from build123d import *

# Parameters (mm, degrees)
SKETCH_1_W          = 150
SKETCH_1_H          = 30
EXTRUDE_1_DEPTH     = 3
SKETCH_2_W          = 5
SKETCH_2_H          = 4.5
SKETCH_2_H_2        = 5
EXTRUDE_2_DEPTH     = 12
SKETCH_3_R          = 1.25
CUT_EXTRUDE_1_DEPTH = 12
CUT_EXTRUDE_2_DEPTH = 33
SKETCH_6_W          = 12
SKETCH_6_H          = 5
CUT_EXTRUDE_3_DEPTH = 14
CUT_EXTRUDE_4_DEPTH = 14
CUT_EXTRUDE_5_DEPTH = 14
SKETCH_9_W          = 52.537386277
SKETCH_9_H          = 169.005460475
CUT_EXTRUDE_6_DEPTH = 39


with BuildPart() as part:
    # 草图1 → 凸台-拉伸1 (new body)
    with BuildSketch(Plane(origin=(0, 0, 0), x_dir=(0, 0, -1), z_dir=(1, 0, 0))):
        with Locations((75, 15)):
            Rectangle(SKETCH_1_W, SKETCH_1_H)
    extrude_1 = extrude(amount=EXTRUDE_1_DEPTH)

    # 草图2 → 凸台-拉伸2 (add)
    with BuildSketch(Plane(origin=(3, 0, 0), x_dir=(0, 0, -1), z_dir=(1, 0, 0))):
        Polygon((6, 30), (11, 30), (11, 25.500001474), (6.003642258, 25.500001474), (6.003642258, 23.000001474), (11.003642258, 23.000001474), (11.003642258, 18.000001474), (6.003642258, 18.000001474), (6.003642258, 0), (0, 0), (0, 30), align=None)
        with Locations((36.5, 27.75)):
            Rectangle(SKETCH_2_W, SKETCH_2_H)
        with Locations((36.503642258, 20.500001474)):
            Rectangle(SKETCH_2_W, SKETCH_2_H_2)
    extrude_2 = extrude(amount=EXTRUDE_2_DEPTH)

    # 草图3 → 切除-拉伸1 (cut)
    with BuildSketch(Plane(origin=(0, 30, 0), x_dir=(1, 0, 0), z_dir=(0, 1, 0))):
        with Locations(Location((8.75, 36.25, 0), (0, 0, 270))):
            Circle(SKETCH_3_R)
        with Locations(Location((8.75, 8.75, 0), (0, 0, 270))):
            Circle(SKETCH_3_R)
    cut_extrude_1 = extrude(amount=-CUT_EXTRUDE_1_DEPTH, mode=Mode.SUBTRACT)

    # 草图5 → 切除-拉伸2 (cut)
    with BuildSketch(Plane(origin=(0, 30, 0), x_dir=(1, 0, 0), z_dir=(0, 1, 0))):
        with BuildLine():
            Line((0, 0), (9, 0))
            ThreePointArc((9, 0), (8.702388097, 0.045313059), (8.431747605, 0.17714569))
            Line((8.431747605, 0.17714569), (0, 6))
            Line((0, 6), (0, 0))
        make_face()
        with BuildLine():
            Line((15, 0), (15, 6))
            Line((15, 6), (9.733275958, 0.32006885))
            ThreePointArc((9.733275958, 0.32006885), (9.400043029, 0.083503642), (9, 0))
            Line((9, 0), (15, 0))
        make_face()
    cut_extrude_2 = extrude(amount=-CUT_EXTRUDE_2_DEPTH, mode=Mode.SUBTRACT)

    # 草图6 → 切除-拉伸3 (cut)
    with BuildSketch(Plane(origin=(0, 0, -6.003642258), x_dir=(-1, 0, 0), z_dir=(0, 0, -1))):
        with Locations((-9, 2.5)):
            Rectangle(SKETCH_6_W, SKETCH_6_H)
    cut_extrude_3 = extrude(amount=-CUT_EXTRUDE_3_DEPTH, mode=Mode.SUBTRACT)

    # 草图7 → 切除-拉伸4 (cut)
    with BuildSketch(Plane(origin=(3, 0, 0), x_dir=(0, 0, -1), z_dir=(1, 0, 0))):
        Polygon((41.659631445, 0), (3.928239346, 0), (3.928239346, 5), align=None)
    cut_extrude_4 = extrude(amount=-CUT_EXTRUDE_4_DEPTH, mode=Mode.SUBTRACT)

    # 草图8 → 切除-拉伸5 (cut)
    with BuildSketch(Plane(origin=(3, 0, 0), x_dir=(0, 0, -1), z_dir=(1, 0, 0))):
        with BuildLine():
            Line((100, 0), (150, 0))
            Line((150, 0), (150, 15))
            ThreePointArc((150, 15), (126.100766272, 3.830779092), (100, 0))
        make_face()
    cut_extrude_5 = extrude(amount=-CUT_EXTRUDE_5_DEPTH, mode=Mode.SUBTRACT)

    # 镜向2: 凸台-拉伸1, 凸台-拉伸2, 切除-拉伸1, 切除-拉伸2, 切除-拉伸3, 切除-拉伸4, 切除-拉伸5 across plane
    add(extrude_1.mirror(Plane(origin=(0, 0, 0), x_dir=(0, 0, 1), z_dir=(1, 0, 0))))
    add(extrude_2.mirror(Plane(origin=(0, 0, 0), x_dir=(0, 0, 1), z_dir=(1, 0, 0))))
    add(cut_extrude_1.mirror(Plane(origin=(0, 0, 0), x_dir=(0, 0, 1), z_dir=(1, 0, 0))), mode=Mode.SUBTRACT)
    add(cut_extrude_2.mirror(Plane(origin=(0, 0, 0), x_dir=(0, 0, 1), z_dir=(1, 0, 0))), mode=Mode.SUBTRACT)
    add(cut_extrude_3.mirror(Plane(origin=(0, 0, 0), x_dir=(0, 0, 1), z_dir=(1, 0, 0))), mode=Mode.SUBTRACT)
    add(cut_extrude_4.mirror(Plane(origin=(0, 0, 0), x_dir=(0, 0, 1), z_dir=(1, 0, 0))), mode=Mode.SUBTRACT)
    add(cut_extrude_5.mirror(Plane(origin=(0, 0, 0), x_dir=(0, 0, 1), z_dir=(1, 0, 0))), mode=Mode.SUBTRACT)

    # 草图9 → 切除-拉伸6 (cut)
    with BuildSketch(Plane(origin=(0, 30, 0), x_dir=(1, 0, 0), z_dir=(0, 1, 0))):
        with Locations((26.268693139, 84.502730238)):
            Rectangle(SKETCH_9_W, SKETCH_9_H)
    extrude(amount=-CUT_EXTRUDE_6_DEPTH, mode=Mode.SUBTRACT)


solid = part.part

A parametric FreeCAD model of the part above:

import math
import FreeCAD as App
import Part
import Sketcher
Q = App.Units.Quantity


def add_polygon(sketch, points):
    """Adds a closed chain of lines whose ends are joined by coincident constraints."""
    first, n = sketch.GeometryCount, len(points)
    for a, b in zip(points, points[1:] + points[:1]):
        sketch.addGeometry(Part.LineSegment(App.Vector(*a, 0), App.Vector(*b, 0)), False)
    for i in range(n):
        sketch.addConstraint(Sketcher.Constraint("Coincident", first + i, 2, first + (i + 1) % n, 1))

doc = App.newDocument("Part")
body = doc.addObject("PartDesign::Body", "Body")

# Sketch on YZ plane
sketch1 = body.newObject("Sketcher::SketchObject", "Sketch")
sketch1.AttachmentSupport = (doc.getObject("YZ_Plane"), [""])
sketch1.MapMode = "FlatFace"
add_polygon(sketch1, [(30, 0), (0, 0), (0, -150), (30, -150)])  # lines 0-3
sketch1.addConstraint([
    Sketcher.Constraint("Horizontal", 0),
    Sketcher.Constraint("Vertical", 1),
    Sketcher.Constraint("Horizontal", 2),
    Sketcher.Constraint("Vertical", 3),
    Sketcher.Constraint("Coincident", 0, 2, -1, 1),
    Sketcher.Constraint("DistanceX", 0, 2, 0, 1, Q("30 mm")),
    Sketcher.Constraint("DistanceY", 1, 2, 1, 1, Q("150 mm")),
])
pad1 = body.newObject("PartDesign::Pad", "Pad")
pad1.Profile = sketch1
pad1.Length = 3

# Sketch on YZ plane
sketch2 = body.newObject("Sketcher::SketchObject", "Sketch001")
sketch2.AttachmentSupport = (doc.getObject("YZ_Plane"), [""])
sketch2.MapMode = "FlatFace"
sketch2.AttachmentOffset = App.Placement(App.Vector(0, 0, 3), App.Rotation())
add_polygon(sketch2, [(30, -11), (30, 0), (0, 0), (0, -6), (18, -6), (18, -11), (23, -11), (23, -6), (25.5, -6), (25.5, -11)])  # lines 0-9
add_polygon(sketch2, [(30, -34), (25.5, -34), (25.5, -39), (30, -39)])  # lines 10-13
add_polygon(sketch2, [(23, -34), (18, -34), (18, -39), (23, -39)])  # lines 14-17
sketch2.addConstraint([
    Sketcher.Constraint("Vertical", 0),
    Sketcher.Constraint("Horizontal", 1),
    Sketcher.Constraint("Vertical", 2),
    Sketcher.Constraint("Horizontal", 3),
    Sketcher.Constraint("Vertical", 4),
    Sketcher.Constraint("Horizontal", 5),
    Sketcher.Constraint("Vertical", 6),
    Sketcher.Constraint("Horizontal", 7),
    Sketcher.Constraint("Vertical", 8),
    Sketcher.Constraint("Horizontal", 9),
    Sketcher.Constraint("Horizontal", 10),
    Sketcher.Constraint("Vertical", 11),
    Sketcher.Constraint("Horizontal", 12),
    Sketcher.Constraint("Vertical", 13),
    Sketcher.Constraint("Horizontal", 14),
    Sketcher.Constraint("Vertical", 15),
    Sketcher.Constraint("Horizontal", 16),
    Sketcher.Constraint("Vertical", 17),
    Sketcher.Constraint("Coincident", 1, 2, -1, 1),
    Sketcher.Constraint("Horizontal", 3, 2, 6, 2),
    Sketcher.Constraint("Vertical", 8, 2, 10, 2),
    Sketcher.Constraint("Vertical", 9, 2, 12, 2),
    Sketcher.Constraint("Vertical", 4, 2, 14, 2),
    Sketcher.Constraint("Vertical", 6, 2, 16, 2),
    Sketcher.Constraint("Equal", 16, 4),
    Sketcher.Constraint("Equal", 6, 11),
    Sketcher.Constraint("Equal", 13, 15),
    Sketcher.Constraint("DistanceX", 1, 2, 1, 1, Q("30 mm")),
    Sketcher.Constraint("DistanceX", 3, 1, 3, 2, Q("18.000001 mm")),
    Sketcher.Constraint("DistanceX", 5, 1, 5, 2, Q("5 mm")),
    Sketcher.Constraint("DistanceY", 0, 1, 0, 2, Q("11 mm")),
    Sketcher.Constraint("DistanceX", 7, 1, 7, 2, Q("2.5 mm")),
    Sketcher.Constraint("DistanceY", 10, 2, -1, 1, Q("34 mm")),
    Sketcher.Constraint("DistanceY", 14, 2, 4, 2, Q("23 mm")),
    Sketcher.Constraint("DistanceY", 2, 2, 2, 1, Q("6.003642 mm")),
])
pad2 = body.newObject("PartDesign::Pad", "Pad001")
pad2.Profile = sketch2
pad2.Length = 12

# Sketch on XZ plane
sketch3 = body.newObject("Sketcher::SketchObject", "Sketch002")
sketch3.AttachmentSupport = (doc.getObject("XZ_Plane"), [""])
sketch3.MapMode = "FlatFace"
sketch3.AttachmentOffset = App.Placement(App.Vector(0, 0, -30), App.Rotation())
sketch3.addGeometry([
    Part.Circle(App.Vector(8.8, -36.2, 0), App.Vector(0, 0, 1), 1.2),
    Part.Circle(App.Vector(8.8, -8.8, 0), App.Vector(0, 0, 1), 1.2),
], False)
sketch3.addConstraint([
    Sketcher.Constraint("Equal", 0, 1),
    Sketcher.Constraint("Vertical", 0, 3, 1, 3),
    Sketcher.Constraint("Diameter", 0, Q("2.5 mm")),
    Sketcher.Constraint("DistanceY", 0, 3, 1, 3, Q("27.5 mm")),
    Sketcher.Constraint("DistanceX", -1, 1, 0, 3, Q("8.75 mm")),
    Sketcher.Constraint("DistanceY", 0, 3, -1, 1, Q("36.25 mm")),
])
pocket1 = body.newObject("PartDesign::Pocket", "Pocket")
pocket1.Profile = sketch3
pocket1.Length = 12
pocket1.Reversed = True

# Sketch on XZ plane
sketch4 = body.newObject("Sketcher::SketchObject", "Sketch003")
sketch4.AttachmentSupport = (doc.getObject("XZ_Plane"), [""])
sketch4.MapMode = "FlatFace"
sketch4.AttachmentOffset = App.Placement(App.Vector(0, 0, -30), App.Rotation())
sketch4.addGeometry([
    Part.LineSegment(App.Vector(0, 0, 0), App.Vector(9, 0, 0)),  # 0
    Part.ArcOfCircle(Part.Circle(App.Vector(9, -1, 0), App.Vector(0, 0, 1), 1), math.radians(90), math.radians(125)),  # 1
    Part.LineSegment(App.Vector(8.4, -0.2, 0), App.Vector(0, -6, 0)),  # 2
    Part.LineSegment(App.Vector(0, -6, 0), App.Vector(0, 0, 0)),  # 3
    Part.LineSegment(App.Vector(15, 0, 0), App.Vector(15, -6, 0)),  # 4
    Part.LineSegment(App.Vector(15, -6, 0), App.Vector(9.7, -0.3, 0)),  # 5
    Part.ArcOfCircle(Part.Circle(App.Vector(9, -1, 0), App.Vector(0, 0, 1), 1), math.radians(43), math.radians(90)),  # 6
    Part.LineSegment(App.Vector(9, 0, 0), App.Vector(15, 0, 0)),  # 7
], False)
sketch4.addConstraint([
    Sketcher.Constraint("Tangent", 0, 2, 1, 1),
    Sketcher.Constraint("Tangent", 1, 2, 2, 1),
    Sketcher.Constraint("Coincident", 2, 2, 3, 1),
    Sketcher.Constraint("Coincident", 3, 2, 0, 1),
    Sketcher.Constraint("Coincident", 4, 2, 5, 1),
    Sketcher.Constraint("Tangent", 5, 2, 6, 1),
    Sketcher.Constraint("Tangent", 6, 2, 7, 1),
    Sketcher.Constraint("Coincident", 7, 2, 4, 1),
    Sketcher.Constraint("Horizontal", 0),
    Sketcher.Constraint("Vertical", 3),
    Sketcher.Constraint("Vertical", 4),
    Sketcher.Constraint("Horizontal", 7),
    Sketcher.Constraint("Coincident", 3, 2, -1, 1),
    Sketcher.Constraint("Coincident", 6, 3, 1, 3),
    Sketcher.Constraint("Equal", 1, 6),
    Sketcher.Constraint("Horizontal", 2, 2, 4, 2),
    Sketcher.Constraint("Equal", 7, 3),
    Sketcher.Constraint("Radius", 1, Q("1 mm")),
    Sketcher.Constraint("DistanceX", 0, 1, 0, 2, Q("9 mm")),
    Sketcher.Constraint("DistanceX", 7, 1, 7, 2, Q("6 mm")),
])
pocket2 = body.newObject("PartDesign::Pocket", "Pocket001")
pocket2.Profile = sketch4
pocket2.Length = 33
pocket2.Reversed = True

# Sketch on XY plane
sketch5 = body.newObject("Sketcher::SketchObject", "Sketch004")
sketch5.AttachmentSupport = (doc.getObject("XY_Plane"), [""])
sketch5.MapMode = "FlatFace"
sketch5.AttachmentOffset = App.Placement(App.Vector(0, 0, -6.003642), App.Rotation())
add_polygon(sketch5, [(15, 5), (15, 0), (3, 0), (3, 5)])  # lines 0-3
sketch5.addConstraint([
    Sketcher.Constraint("Vertical", 0),
    Sketcher.Constraint("Horizontal", 1),
    Sketcher.Constraint("Vertical", 2),
    Sketcher.Constraint("Horizontal", 3),
    Sketcher.Constraint("PointOnObject", 0, 2, -1),
    Sketcher.Constraint("DistanceX", 1, 2, 1, 1, Q("12 mm")),
    Sketcher.Constraint("DistanceY", 0, 2, 0, 1, Q("5 mm")),
    Sketcher.Constraint("DistanceX", -1, 1, 0, 2, Q("15 mm")),
])
pocket3 = body.newObject("PartDesign::Pocket", "Pocket002")
pocket3.Profile = sketch5
pocket3.Length = 14
pocket3.Reversed = True

# Sketch on YZ plane
sketch6 = body.newObject("Sketcher::SketchObject", "Sketch005")
sketch6.AttachmentSupport = (doc.getObject("YZ_Plane"), [""])
sketch6.MapMode = "FlatFace"
sketch6.AttachmentOffset = App.Placement(App.Vector(0, 0, 3), App.Rotation())
add_polygon(sketch6, [(0, -4), (0, -42), (5, -4)])  # lines 0-2
sketch6.addConstraint([
    Sketcher.Constraint("Vertical", 0),
    Sketcher.Constraint("Horizontal", 2),
    Sketcher.Constraint("PointOnObject", 0, 2, -2),
    Sketcher.Constraint("DistanceX", 2, 2, 2, 1, Q("5 mm")),
    Sketcher.Constraint("Distance", 1, Q("38.061239 mm")),
    Sketcher.Constraint("DistanceY", 0, 2, -1, 1, Q("41.659631 mm")),
])
pocket4 = body.newObject("PartDesign::Pocket", "Pocket003")
pocket4.Profile = sketch6
pocket4.Length = 14

# Sketch on YZ plane
sketch7 = body.newObject("Sketcher::SketchObject", "Sketch006")
sketch7.AttachmentSupport = (doc.getObject("YZ_Plane"), [""])
sketch7.MapMode = "FlatFace"
sketch7.AttachmentOffset = App.Placement(App.Vector(0, 0, 3), App.Rotation())
sketch7.addGeometry([
    Part.LineSegment(App.Vector(0, -100, 0), App.Vector(0, -150, 0)),
    Part.LineSegment(App.Vector(0, -150, 0), App.Vector(15, -150, 0)),
    Part.ArcOfCircle(Part.Circle(App.Vector(91, -100, 0), App.Vector(0, 0, 1), 91), math.radians(180), math.radians(213)),
], False)
sketch7.addConstraint([
    Sketcher.Constraint("Coincident", 0, 2, 1, 1),
    Sketcher.Constraint("Coincident", 1, 2, 2, 2),
    Sketcher.Constraint("Tangent", 2, 1, 0, 1),
    Sketcher.Constraint("Vertical", 0),
    Sketcher.Constraint("Horizontal", 1),
    Sketcher.Constraint("PointOnObject", 0, 2, -2),
    Sketcher.Constraint("DistanceX", 1, 1, 1, 2, Q("15 mm")),
    Sketcher.Constraint("DistanceY", 0, 2, 0, 1, Q("50 mm")),
    Sketcher.Constraint("DistanceY", 2, 3, -1, 1, Q("100 mm")),
])
pocket5 = body.newObject("PartDesign::Pocket", "Pocket004")
pocket5.Profile = sketch7
pocket5.Length = 14
doc.recompute()

mirrored = body.newObject("PartDesign::Mirrored", "Mirrored")
mirrored.Originals = [pad1, pad2, pocket1, pocket2, pocket3, pocket4, pocket5]
mirrored.MirrorPlane = (doc.getObject("YZ_Plane"), [""])
body.Tip = mirrored

# Sketch on XZ plane
sketch8 = body.newObject("Sketcher::SketchObject", "Sketch007")
sketch8.AttachmentSupport = (doc.getObject("XZ_Plane"), [""])
sketch8.MapMode = "FlatFace"
sketch8.AttachmentOffset = App.Placement(App.Vector(0, 0, -30), App.Rotation())
add_polygon(sketch8, [(0, -169), (0, 0), (53, 0), (53, -169)])  # lines 0-3
sketch8.addConstraint([
    Sketcher.Constraint("Vertical", 0),
    Sketcher.Constraint("Horizontal", 1),
    Sketcher.Constraint("Vertical", 2),
    Sketcher.Constraint("Horizontal", 3),
    Sketcher.Constraint("Coincident", 0, 2, -1, 1),
    Sketcher.Constraint("DistanceY", 0, 1, 0, 2, Q("169.00546 mm")),
    Sketcher.Constraint("DistanceX", 1, 1, 1, 2, Q("52.537386 mm")),
])
pocket6 = body.newObject("PartDesign::Pocket", "Pocket005")
pocket6.Profile = sketch8
pocket6.Length = 39
pocket6.Reversed = True

doc.recompute()
